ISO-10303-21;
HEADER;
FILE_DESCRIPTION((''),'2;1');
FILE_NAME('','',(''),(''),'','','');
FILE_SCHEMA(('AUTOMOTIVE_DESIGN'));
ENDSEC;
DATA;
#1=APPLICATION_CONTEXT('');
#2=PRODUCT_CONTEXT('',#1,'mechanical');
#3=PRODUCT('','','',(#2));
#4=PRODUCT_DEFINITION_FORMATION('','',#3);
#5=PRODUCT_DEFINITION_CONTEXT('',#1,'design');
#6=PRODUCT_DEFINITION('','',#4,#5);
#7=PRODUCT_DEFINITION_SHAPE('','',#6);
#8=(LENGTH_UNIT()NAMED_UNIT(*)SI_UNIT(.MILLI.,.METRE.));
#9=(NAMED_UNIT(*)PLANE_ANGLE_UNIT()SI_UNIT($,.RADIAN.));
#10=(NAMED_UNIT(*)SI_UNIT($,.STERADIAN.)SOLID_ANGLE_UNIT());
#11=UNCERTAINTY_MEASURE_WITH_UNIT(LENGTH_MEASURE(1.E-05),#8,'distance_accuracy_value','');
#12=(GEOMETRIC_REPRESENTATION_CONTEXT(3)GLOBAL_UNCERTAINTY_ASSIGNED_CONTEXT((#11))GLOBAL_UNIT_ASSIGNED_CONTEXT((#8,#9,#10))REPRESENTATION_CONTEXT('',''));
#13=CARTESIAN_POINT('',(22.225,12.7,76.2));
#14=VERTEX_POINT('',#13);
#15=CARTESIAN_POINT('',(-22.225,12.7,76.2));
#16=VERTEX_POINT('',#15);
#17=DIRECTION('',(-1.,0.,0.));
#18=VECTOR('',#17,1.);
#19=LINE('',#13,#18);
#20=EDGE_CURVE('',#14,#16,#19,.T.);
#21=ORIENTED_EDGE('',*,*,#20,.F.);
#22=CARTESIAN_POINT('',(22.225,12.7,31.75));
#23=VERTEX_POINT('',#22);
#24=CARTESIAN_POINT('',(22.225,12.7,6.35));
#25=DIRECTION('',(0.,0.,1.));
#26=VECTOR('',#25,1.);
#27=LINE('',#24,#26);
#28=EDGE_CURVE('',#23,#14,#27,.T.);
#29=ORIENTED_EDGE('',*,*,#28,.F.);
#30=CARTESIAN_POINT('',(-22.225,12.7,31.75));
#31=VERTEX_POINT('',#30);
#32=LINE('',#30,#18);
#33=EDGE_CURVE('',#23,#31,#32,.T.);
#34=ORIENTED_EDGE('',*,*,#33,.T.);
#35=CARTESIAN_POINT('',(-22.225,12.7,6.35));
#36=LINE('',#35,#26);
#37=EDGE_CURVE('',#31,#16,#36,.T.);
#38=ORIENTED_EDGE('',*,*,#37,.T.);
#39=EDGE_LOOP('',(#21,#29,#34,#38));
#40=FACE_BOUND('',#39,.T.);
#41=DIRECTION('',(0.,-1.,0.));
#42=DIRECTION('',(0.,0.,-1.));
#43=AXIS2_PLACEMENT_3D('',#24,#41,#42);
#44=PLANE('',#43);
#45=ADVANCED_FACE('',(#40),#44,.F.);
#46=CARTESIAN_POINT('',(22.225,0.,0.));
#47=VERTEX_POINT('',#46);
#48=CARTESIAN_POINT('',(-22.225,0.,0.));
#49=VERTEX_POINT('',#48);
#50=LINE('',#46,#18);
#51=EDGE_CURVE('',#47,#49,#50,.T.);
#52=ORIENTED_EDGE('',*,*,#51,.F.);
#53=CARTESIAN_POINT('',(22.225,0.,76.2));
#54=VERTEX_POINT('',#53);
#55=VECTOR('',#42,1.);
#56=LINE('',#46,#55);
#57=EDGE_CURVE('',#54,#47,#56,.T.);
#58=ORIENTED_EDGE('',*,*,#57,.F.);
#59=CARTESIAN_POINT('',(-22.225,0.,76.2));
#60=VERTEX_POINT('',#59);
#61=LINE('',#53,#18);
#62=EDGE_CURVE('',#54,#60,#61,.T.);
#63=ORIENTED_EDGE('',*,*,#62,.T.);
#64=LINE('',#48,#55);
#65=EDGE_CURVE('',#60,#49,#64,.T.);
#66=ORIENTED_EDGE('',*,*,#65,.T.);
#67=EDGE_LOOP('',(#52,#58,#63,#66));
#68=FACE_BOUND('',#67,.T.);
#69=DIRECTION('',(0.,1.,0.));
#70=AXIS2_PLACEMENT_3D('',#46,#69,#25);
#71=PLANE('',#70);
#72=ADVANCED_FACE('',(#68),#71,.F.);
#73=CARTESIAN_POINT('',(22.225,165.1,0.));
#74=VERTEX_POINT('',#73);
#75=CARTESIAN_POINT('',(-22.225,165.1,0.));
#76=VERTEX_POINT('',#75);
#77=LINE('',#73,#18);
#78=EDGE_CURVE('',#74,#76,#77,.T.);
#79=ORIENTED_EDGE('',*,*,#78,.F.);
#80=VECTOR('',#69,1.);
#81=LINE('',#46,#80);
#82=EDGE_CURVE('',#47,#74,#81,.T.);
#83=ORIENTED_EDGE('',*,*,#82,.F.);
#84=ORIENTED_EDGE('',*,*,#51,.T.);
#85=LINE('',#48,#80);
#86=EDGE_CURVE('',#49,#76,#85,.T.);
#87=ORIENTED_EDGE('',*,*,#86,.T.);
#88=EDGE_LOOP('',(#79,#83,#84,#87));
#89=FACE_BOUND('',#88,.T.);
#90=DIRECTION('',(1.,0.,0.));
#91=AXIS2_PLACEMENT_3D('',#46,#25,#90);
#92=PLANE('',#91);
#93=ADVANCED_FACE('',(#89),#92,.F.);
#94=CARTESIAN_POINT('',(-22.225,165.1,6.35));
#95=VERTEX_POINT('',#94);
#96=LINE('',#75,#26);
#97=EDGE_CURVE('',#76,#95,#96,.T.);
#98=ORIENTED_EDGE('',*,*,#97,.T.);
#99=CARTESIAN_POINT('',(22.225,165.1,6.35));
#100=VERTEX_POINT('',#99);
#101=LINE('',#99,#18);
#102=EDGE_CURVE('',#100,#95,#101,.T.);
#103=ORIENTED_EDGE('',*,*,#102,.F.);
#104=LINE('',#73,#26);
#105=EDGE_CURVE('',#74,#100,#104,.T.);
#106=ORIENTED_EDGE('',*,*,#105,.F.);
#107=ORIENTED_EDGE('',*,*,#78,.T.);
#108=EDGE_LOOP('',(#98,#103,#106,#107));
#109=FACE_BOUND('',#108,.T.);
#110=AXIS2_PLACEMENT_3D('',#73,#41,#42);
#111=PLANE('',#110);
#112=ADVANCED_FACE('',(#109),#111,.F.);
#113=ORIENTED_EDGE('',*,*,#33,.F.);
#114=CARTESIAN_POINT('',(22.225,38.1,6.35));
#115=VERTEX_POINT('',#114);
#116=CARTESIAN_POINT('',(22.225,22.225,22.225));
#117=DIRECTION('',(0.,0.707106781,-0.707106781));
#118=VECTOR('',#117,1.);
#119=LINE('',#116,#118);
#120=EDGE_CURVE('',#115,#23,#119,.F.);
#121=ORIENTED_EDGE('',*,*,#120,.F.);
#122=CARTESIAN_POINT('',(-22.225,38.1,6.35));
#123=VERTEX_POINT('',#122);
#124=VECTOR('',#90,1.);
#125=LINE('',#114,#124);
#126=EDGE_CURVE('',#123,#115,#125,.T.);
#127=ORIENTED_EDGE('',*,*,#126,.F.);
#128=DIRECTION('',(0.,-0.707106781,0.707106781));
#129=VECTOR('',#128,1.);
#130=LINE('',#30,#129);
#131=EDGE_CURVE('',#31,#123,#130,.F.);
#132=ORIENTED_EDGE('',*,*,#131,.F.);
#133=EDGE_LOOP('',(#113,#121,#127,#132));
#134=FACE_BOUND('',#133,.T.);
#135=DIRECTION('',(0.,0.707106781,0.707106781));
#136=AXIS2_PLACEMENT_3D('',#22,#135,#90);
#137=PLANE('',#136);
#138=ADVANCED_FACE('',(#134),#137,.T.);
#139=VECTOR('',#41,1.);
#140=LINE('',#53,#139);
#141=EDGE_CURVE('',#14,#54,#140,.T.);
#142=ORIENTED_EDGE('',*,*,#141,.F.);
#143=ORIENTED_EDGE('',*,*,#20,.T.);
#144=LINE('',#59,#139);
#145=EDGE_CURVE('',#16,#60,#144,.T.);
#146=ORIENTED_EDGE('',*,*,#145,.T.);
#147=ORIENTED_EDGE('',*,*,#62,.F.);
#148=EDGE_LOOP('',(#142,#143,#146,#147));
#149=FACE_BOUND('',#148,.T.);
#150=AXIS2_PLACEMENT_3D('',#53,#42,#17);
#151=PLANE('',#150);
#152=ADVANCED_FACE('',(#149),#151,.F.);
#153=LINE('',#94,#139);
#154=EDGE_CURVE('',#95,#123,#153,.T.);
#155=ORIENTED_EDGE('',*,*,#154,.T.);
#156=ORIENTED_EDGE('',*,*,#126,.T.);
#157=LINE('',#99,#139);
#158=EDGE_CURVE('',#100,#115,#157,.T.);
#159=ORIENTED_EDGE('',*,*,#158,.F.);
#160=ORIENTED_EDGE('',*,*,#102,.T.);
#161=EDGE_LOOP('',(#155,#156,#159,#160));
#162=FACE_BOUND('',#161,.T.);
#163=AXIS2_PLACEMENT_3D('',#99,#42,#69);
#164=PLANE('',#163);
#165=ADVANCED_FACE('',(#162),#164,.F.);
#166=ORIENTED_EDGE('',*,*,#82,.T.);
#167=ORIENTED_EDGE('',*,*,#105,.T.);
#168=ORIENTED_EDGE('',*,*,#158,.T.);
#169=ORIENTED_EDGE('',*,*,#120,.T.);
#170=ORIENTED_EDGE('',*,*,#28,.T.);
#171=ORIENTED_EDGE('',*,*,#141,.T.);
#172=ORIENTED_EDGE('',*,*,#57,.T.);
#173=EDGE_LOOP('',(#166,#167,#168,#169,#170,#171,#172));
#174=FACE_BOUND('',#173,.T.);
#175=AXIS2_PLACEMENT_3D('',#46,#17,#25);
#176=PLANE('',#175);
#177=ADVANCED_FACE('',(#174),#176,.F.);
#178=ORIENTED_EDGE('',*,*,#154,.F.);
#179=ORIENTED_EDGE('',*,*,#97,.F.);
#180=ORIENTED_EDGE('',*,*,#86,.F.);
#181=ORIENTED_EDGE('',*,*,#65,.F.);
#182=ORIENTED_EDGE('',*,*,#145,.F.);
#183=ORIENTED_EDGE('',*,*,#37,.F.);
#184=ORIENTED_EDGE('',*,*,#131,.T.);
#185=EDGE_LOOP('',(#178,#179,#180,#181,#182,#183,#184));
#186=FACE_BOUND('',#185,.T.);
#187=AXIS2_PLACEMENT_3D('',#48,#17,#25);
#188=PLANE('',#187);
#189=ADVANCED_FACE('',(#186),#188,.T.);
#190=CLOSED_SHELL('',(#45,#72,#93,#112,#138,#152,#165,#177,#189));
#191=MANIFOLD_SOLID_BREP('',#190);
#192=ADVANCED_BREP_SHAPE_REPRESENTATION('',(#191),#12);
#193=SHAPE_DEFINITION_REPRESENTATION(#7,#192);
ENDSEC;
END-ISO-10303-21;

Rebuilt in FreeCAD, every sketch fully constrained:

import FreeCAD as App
import Part
import Sketcher
Q = App.Units.Quantity


def edges_at(feature, points):
    """Names of the edges that pass closest to the given points."""
    edges = feature.Shape.Edges
    near = lambda p: min(range(len(edges)), key=lambda i: edges[i].distToShape(Part.Vertex(*p))[0])
    return sorted({f"Edge{near(p) + 1}" for p in points})

doc = App.newDocument("Part")
params = doc.addObject("Spreadsheet::Sheet", "Params")
for row, (alias, value) in enumerate([
    ("sketch1_width", "6 in"),
    ("sketch1_height", "3 in"),
    ("sketch1_width2", "6.5 in"),
    ("sketch1_height2", "0.25 in"),
    ("pad1_length", "1.75 in"),
    ("chamfer_size", "1 in"),
], start=1):
    params.set(f"A{row}", alias)
    params.set(f"B{row}", "=" + value)
    params.setAlias(f"B{row}", alias)

body = doc.addObject("PartDesign::Body", "Body")

sketch1 = body.newObject("Sketcher::SketchObject", "Sketch")
sketch1.AttachmentSupport = (doc.getObject("YZ_Plane"), [""])
sketch1.MapMode = "FlatFace"
sketch1.addGeometry([
    Part.LineSegment(App.Vector(0, 0, 0), App.Vector(165, 0, 0)),
    Part.LineSegment(App.Vector(165, 0, 0), App.Vector(165, 6, 0)),
    Part.LineSegment(App.Vector(165, 6, 0), App.Vector(13, 6, 0)),
    Part.LineSegment(App.Vector(13, 6, 0), App.Vector(13, 76, 0)),
    Part.LineSegment(App.Vector(13, 76, 0), App.Vector(0, 76, 0)),
    Part.LineSegment(App.Vector(0, 76, 0), App.Vector(0, 0, 0)),
], False)
sketch1.addConstraint([
    Sketcher.Constraint("Coincident", 0, 2, 1, 1),
    Sketcher.Constraint("Coincident", 1, 2, 2, 1),
    Sketcher.Constraint("Coincident", 2, 2, 3, 1),
    Sketcher.Constraint("Coincident", 3, 2, 4, 1),
    Sketcher.Constraint("Coincident", 4, 2, 5, 1),
    Sketcher.Constraint("Coincident", 5, 2, 0, 1),
    Sketcher.Constraint("Horizontal", 0),
    Sketcher.Constraint("Vertical", 1),
    Sketcher.Constraint("Horizontal", 2),
    Sketcher.Constraint("Vertical", 3),
    Sketcher.Constraint("Horizontal", 4),
    Sketcher.Constraint("Vertical", 5),
    Sketcher.Constraint("Coincident", 5, 2, -1, 1),
    Sketcher.Constraint("DistanceX", 2, 2, 2, 1, Q("6 in")),
    Sketcher.Constraint("DistanceY", 5, 2, 5, 1, Q("3 in")),
    Sketcher.Constraint("DistanceX", 0, 1, 0, 2, Q("6.5 in")),
    Sketcher.Constraint("DistanceY", 1, 1, 1, 2, Q("0.25 in")),
])
sketch1.setExpression("Constraints[13]", "Params.sketch1_width")
sketch1.setExpression("Constraints[14]", "Params.sketch1_height")
sketch1.setExpression("Constraints[15]", "Params.sketch1_width2")
sketch1.setExpression("Constraints[16]", "Params.sketch1_height2")
pad1 = body.newObject("PartDesign::Pad", "Pad")
pad1.Profile = sketch1
pad1.setExpression("Length", "Params.pad1_length")
pad1.Midplane = True
doc.recompute()

chamfer = body.newObject("PartDesign::Chamfer", "Chamfer")
chamfer.Base = (pad1, edges_at(pad1, [(0, 12.7, 6.35)]))
chamfer.setExpression("Size", "Params.chamfer_size")

doc.recompute()
